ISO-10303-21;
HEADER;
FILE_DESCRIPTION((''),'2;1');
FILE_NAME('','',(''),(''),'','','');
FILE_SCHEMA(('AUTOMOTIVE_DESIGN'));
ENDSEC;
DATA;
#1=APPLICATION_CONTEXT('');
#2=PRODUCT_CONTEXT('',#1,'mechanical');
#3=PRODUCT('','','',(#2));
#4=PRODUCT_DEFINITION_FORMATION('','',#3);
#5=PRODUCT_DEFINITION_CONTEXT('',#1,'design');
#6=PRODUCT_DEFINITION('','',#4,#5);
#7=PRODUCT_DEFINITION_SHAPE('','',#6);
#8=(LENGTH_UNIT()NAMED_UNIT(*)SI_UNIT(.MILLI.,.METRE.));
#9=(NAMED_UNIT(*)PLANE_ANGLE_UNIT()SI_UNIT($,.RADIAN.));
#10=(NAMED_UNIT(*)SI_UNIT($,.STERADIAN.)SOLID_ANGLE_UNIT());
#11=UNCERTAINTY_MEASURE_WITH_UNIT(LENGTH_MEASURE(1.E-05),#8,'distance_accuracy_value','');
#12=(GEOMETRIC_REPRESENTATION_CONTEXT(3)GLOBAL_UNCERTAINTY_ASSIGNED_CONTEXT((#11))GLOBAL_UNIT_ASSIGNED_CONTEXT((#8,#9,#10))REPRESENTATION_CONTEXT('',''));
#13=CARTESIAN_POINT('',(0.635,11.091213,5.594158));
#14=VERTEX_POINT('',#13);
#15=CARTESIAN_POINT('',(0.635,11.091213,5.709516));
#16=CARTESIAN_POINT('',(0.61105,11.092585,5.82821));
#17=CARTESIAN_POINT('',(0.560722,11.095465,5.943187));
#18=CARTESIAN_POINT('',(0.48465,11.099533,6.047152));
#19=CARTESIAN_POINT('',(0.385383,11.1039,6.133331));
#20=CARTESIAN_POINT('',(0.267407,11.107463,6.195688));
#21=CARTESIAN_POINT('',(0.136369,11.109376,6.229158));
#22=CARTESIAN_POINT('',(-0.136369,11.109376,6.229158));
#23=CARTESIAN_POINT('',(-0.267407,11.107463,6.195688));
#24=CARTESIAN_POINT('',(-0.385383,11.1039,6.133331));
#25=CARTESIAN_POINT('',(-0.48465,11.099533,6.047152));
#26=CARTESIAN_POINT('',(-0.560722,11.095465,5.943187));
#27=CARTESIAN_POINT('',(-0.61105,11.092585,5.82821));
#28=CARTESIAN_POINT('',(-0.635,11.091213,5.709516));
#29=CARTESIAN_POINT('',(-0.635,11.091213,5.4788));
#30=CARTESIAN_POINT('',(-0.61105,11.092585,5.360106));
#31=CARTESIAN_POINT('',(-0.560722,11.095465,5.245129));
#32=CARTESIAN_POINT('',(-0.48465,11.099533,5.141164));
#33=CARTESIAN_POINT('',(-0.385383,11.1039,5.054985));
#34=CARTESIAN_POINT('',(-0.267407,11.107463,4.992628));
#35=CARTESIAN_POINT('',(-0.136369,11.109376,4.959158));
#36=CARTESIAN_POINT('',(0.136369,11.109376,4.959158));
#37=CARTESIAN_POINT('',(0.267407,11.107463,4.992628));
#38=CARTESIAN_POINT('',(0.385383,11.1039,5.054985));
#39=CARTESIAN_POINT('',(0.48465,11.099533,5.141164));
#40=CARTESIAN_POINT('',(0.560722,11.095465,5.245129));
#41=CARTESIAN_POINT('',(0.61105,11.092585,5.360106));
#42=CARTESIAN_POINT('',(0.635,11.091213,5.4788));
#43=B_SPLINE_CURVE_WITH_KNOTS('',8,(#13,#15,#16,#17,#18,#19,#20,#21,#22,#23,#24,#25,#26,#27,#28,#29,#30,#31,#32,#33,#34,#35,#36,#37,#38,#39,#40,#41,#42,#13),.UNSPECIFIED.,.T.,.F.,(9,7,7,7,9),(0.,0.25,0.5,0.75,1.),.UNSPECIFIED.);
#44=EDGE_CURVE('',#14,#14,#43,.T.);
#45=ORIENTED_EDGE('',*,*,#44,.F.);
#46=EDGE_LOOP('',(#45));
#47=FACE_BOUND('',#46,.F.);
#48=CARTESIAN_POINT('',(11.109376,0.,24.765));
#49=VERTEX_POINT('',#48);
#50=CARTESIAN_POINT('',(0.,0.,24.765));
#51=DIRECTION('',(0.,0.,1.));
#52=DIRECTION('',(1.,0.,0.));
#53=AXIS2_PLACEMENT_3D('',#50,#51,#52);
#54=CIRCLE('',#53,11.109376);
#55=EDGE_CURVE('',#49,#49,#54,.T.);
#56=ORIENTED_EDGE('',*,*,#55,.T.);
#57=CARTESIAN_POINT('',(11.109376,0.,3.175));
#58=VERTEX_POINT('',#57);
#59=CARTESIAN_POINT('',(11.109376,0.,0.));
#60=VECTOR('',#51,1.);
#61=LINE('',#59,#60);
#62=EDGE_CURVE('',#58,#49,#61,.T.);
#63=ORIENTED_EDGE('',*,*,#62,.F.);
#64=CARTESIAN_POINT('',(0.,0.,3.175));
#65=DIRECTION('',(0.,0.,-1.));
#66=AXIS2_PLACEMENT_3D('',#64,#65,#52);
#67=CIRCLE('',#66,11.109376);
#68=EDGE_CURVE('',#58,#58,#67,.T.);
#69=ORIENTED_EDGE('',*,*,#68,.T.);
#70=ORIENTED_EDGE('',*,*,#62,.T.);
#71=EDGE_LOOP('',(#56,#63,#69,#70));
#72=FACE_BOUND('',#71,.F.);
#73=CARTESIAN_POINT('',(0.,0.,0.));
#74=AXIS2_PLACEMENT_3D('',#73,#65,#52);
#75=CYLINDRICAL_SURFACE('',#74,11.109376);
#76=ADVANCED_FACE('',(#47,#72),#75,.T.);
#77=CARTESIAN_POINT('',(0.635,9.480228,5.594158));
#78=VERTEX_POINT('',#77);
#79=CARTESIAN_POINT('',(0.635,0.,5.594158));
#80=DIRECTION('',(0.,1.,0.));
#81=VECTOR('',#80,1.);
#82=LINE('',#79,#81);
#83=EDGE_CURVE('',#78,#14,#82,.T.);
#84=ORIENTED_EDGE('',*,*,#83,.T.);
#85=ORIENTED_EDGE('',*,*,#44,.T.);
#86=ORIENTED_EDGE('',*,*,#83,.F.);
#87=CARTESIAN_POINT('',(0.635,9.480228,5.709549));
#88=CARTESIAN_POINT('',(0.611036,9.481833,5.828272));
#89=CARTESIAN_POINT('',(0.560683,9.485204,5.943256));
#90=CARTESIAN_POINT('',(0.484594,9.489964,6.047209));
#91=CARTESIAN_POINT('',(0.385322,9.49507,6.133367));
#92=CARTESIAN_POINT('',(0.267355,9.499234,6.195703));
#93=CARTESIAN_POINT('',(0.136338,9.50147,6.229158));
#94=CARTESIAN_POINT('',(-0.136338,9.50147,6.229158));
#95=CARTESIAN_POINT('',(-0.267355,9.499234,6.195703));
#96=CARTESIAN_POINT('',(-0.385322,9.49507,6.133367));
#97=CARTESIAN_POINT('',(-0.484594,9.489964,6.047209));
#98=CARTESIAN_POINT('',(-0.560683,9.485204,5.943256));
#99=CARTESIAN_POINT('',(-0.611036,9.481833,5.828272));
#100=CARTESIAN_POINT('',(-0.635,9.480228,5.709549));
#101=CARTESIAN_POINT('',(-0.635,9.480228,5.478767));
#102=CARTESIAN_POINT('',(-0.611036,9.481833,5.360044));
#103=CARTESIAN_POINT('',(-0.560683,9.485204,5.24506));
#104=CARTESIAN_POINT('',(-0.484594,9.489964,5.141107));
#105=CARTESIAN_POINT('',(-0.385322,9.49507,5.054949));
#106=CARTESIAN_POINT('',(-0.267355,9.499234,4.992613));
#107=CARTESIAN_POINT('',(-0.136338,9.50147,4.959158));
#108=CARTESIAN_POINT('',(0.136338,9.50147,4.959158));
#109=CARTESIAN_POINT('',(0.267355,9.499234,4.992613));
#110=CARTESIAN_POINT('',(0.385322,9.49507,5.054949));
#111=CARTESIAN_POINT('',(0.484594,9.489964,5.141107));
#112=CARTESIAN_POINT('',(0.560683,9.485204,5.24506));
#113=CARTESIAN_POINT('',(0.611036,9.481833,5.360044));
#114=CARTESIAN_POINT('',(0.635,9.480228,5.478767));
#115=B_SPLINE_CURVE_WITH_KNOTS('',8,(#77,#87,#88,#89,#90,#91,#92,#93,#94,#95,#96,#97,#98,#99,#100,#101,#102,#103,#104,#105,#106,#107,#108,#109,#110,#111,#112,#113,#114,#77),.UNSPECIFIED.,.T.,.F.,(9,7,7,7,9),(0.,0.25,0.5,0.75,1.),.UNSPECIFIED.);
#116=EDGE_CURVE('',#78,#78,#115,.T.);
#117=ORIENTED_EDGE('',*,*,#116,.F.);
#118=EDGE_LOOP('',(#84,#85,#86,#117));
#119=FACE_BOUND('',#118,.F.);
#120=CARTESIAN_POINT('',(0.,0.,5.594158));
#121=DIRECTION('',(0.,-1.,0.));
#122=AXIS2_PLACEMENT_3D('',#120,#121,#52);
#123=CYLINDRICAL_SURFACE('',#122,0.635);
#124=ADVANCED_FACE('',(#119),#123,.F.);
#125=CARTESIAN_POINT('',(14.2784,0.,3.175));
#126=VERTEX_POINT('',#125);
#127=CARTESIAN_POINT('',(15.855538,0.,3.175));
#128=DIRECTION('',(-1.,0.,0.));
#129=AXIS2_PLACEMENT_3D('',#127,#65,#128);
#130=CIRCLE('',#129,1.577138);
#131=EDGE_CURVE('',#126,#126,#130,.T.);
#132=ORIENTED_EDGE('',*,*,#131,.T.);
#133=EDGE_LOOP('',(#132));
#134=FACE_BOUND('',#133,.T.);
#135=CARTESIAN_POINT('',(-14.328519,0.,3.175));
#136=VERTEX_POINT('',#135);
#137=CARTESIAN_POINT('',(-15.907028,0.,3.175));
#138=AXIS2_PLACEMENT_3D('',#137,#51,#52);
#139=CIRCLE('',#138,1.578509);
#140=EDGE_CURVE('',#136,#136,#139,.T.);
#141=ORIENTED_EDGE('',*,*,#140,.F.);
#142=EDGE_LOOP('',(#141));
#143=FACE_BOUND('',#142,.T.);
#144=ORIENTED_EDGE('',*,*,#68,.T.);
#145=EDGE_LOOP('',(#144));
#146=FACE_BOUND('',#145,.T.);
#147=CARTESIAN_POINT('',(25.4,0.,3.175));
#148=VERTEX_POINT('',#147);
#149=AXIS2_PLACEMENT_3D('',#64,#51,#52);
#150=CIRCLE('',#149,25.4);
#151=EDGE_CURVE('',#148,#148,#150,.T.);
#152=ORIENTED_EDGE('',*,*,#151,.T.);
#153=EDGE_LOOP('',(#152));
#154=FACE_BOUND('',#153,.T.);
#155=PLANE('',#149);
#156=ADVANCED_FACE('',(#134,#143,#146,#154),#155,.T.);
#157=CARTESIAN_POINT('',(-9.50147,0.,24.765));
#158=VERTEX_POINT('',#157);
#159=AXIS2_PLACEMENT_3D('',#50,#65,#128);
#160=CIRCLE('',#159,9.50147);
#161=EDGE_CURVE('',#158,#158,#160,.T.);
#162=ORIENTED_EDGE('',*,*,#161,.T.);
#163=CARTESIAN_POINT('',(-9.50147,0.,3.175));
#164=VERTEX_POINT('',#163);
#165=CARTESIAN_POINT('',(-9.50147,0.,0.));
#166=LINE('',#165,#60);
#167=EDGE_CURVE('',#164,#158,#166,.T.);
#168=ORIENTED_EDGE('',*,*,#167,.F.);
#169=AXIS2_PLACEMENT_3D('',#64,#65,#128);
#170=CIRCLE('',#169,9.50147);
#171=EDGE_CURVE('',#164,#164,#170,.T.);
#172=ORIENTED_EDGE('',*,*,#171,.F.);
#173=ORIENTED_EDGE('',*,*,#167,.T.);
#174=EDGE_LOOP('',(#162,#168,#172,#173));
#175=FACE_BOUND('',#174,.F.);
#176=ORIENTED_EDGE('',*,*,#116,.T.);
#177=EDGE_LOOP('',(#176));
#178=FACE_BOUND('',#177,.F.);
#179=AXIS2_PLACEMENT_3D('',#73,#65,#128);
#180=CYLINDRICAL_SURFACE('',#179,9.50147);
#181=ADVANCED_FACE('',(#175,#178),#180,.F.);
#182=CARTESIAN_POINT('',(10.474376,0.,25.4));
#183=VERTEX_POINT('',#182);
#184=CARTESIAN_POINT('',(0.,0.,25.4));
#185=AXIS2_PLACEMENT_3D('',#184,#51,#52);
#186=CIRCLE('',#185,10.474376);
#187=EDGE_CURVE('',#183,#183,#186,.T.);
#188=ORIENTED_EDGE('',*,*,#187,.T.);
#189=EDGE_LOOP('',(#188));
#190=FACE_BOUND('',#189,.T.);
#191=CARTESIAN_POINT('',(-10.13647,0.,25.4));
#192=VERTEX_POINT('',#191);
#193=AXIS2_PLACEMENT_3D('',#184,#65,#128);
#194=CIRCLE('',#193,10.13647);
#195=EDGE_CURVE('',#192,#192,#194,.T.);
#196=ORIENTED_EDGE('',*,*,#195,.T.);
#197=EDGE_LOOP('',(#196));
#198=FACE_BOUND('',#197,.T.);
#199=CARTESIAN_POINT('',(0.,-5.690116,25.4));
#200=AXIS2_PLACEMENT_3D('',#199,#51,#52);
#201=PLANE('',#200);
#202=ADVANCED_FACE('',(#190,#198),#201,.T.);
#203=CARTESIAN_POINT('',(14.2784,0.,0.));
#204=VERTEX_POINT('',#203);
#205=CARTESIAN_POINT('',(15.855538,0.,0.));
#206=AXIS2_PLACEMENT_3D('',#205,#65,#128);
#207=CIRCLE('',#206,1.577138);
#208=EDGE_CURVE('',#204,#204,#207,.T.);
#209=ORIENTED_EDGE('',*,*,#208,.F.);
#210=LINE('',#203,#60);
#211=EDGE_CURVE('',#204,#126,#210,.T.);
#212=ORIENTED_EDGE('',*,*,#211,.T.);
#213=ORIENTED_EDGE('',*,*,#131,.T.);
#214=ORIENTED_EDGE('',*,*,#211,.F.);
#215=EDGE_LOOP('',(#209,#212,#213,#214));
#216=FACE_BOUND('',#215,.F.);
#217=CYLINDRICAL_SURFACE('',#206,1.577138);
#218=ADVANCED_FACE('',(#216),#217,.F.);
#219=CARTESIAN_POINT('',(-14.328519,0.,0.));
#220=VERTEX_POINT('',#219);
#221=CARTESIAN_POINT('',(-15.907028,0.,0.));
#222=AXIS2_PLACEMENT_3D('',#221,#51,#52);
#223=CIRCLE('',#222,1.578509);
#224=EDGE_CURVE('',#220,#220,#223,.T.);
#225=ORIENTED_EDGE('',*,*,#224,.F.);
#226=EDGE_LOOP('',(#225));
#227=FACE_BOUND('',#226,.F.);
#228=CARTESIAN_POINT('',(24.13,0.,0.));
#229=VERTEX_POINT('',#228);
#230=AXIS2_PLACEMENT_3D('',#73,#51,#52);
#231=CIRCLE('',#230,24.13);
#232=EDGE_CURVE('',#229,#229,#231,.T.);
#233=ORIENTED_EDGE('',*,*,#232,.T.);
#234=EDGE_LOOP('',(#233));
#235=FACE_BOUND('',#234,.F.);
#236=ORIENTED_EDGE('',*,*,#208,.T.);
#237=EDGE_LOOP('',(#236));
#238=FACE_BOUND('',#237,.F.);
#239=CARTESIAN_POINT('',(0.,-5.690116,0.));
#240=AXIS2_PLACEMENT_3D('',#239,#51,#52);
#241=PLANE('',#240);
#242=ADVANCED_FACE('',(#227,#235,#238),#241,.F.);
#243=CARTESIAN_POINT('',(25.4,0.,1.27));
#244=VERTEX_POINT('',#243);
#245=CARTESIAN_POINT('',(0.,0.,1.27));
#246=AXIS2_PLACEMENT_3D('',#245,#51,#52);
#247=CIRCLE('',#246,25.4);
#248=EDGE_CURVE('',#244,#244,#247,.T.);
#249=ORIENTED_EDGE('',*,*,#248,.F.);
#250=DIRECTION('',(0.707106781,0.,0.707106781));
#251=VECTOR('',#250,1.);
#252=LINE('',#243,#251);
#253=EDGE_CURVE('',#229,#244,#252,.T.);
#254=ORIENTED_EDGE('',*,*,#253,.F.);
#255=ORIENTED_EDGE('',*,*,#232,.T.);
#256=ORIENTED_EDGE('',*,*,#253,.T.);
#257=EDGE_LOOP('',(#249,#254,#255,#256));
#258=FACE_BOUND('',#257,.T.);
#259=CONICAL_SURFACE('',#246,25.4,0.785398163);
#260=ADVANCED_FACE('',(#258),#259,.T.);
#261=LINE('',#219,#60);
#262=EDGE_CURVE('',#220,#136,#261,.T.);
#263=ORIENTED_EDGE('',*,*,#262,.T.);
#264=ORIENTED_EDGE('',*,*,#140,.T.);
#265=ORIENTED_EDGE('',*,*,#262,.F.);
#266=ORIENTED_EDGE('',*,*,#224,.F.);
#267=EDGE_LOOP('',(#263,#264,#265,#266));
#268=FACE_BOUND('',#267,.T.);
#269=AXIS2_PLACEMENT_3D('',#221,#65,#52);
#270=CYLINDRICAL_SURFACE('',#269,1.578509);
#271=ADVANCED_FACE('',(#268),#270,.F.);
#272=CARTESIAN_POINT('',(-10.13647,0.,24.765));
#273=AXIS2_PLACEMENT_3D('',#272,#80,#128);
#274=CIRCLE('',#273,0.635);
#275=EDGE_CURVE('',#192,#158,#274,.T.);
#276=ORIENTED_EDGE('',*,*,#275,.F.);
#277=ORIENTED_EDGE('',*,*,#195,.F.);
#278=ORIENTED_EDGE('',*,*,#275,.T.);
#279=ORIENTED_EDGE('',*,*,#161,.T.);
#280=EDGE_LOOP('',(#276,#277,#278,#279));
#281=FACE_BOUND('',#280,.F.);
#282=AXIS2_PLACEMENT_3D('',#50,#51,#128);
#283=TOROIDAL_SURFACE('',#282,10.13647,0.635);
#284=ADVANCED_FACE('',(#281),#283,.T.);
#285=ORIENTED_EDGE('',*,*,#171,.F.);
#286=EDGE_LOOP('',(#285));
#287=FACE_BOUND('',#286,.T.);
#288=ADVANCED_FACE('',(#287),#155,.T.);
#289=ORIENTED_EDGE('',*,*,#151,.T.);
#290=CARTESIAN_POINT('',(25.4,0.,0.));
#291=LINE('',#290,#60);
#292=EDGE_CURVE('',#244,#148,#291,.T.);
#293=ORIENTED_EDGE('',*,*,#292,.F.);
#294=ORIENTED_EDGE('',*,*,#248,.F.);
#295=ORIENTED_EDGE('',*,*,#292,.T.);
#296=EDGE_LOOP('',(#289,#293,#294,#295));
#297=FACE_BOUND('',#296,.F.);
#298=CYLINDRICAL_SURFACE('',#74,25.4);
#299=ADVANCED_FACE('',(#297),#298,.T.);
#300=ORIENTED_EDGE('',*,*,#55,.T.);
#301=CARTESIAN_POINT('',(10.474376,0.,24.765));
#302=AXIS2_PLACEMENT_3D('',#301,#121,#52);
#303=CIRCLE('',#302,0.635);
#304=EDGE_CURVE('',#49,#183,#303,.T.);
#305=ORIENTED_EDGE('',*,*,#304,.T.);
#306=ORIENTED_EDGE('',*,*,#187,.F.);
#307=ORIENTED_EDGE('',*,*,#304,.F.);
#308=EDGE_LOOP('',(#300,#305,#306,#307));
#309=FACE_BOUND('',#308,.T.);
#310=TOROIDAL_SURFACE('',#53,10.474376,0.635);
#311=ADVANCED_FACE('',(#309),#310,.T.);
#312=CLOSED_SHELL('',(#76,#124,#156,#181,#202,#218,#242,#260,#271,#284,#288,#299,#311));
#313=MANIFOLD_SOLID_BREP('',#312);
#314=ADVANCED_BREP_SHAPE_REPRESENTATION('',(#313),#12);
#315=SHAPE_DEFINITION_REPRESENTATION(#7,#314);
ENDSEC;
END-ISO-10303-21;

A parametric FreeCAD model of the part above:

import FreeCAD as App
import Part
import Sketcher
Q = App.Units.Quantity


def edges_at(feature, points):
    """Names of the edges that pass closest to the given points."""
    edges = feature.Shape.Edges
    near = lambda p: min(range(len(edges)), key=lambda i: edges[i].distToShape(Part.Vertex(*p))[0])
    return sorted({f"Edge{near(p) + 1}" for p in points})

doc = App.newDocument("Part")
params = doc.addObject("Spreadsheet::Sheet", "Params")
for row, (alias, value) in enumerate([
    ("sketch1_diameter", "2 in"),
    ("pad1_length", "0.125 in"),
    ("pad2_length", "1 in"),
    ("sketch3_diameter", "0.05 in"),
    ("pocket1_length", "1 in"),
    ("chamfer_size", "0.05 in"),
    ("fillet_radius", "0.025 in"),
], start=1):
    params.set(f"A{row}", alias)
    params.set(f"B{row}", "=" + value)
    params.setAlias(f"B{row}", alias)

body = doc.addObject("PartDesign::Body", "Body")

# Sketch on XY plane
sketch1 = body.newObject("Sketcher::SketchObject", "Sketch")
sketch1.AttachmentSupport = (doc.getObject("XY_Plane"), [""])
sketch1.MapMode = "FlatFace"
sketch1.addGeometry([
    Part.Circle(App.Vector(0, 0, 0), App.Vector(0, 0, 1), 25.4),
    Part.Circle(App.Vector(-15.907028, 0, 0), App.Vector(0, 0, 1), 1.578509),
    Part.Circle(App.Vector(15.855538, 0, 0), App.Vector(0, 0, 1), 1.577138),
], False)
sketch1.addConstraint([
    Sketcher.Constraint("Coincident", 0, 3, -1, 1),
    Sketcher.Constraint("PointOnObject", 1, 3, -1),
    Sketcher.Constraint("PointOnObject", 2, 3, -1),
    Sketcher.Constraint("Diameter", 0, Q("2 in")),
    Sketcher.Constraint("Diameter", 1, 3.157018),
    Sketcher.Constraint("Diameter", 2, 3.154276),
    Sketcher.Constraint("DistanceX", 1, 3, -1, 1, 15.907028),
    Sketcher.Constraint("DistanceX", -1, 1, 2, 3, 15.855538),
])
sketch1.setExpression("Constraints[3]", "Params.sketch1_diameter")
pad1 = body.newObject("PartDesign::Pad", "Pad")
pad1.Profile = sketch1
pad1.setExpression("Length", "Params.pad1_length")

# Sketch on XY plane
sketch2 = body.newObject("Sketcher::SketchObject", "Sketch001")
sketch2.AttachmentSupport = (doc.getObject("XY_Plane"), [""])
sketch2.MapMode = "FlatFace"
sketch2.addGeometry([
    Part.Circle(App.Vector(0, 0, 0), App.Vector(0, 0, 1), 11.109376),
    Part.Circle(App.Vector(0, 0, 0), App.Vector(0, 0, 1), 9.50147),
], False)
sketch2.addConstraint([
    Sketcher.Constraint("Coincident", 0, 3, -1, 1),
    Sketcher.Constraint("Coincident", 1, 3, -1, 1),
    Sketcher.Constraint("Diameter", 1, 19.002941),
    Sketcher.Constraint("Diameter", 0, 22.218752),
])
pad2 = body.newObject("PartDesign::Pad", "Pad001")
pad2.Profile = sketch2
pad2.setExpression("Length", "Params.pad2_length")

# Sketch on XZ plane
sketch3 = body.newObject("Sketcher::SketchObject", "Sketch002")
sketch3.AttachmentSupport = (doc.getObject("XZ_Plane"), [""])
sketch3.MapMode = "FlatFace"
sketch3.addGeometry(Part.Circle(App.Vector(0, 5.594158, 0), App.Vector(0, 0, 1), 0.635), False)
sketch3.addConstraint([
    Sketcher.Constraint("PointOnObject", 0, 3, -2),
    Sketcher.Constraint("Diameter", 0, Q("0.05 in")),
    Sketcher.Constraint("DistanceY", -1, 1, 0, 3, 5.594158),
])
sketch3.setExpression("Constraints[1]", "Params.sketch3_diameter")
pocket1 = body.newObject("PartDesign::Pocket", "Pocket")
pocket1.Profile = sketch3
pocket1.setExpression("Length", "Params.pocket1_length")
doc.recompute()

chamfer = body.newObject("PartDesign::Chamfer", "Chamfer")
chamfer.Base = (pocket1, edges_at(pocket1, [(-25.4, 0, 0)]))
chamfer.setExpression("Size", "Params.chamfer_size")
doc.recompute()

fillet = body.newObject("PartDesign::Fillet", "Fillet")
fillet.Base = (chamfer, edges_at(chamfer, [(-11.109, 0, 25.4), (9.501, 0, 25.4)]))
fillet.setExpression("Radius", "Params.fillet_radius")

doc.recompute()
